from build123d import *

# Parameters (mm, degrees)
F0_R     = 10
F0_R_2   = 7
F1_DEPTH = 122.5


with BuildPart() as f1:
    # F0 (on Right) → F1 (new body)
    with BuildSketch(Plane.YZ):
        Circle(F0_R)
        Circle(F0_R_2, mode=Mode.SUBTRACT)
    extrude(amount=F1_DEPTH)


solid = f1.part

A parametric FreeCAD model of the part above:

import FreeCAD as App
import Part
import Sketcher
from FreeCAD import Vector
Q = App.Units.Quantity

doc = App.newDocument("Part")
body = doc.addObject("PartDesign::Body", "Body")

sketch1 = doc.addObject("Sketcher::SketchObject", "Sketch")
body.addObject(sketch1)
sketch1.AttachmentSupport = (doc.YZ_Plane, [""])
sketch1.MapMode = "FlatFace"
sketch1.addGeometry(Part.Circle(Vector(0, 0, 0), Vector(0, 0, 1), 10), False)
sketch1.addGeometry(Part.Circle(Vector(0, 0, 0), Vector(0, 0, 1), 7), False)
sketch1.addConstraint(Sketcher.Constraint("Coincident", 0, 3, -1, 1))
sketch1.addConstraint(Sketcher.Constraint("Coincident", 1, 3, -1, 1))
sketch1.addConstraint(Sketcher.Constraint("Diameter", 0, Q("20 mm")))
sketch1.addConstraint(Sketcher.Constraint("Diameter", 1, Q("14 mm")))
pad1 = doc.addObject("PartDesign::Pad", "Pad")
body.addObject(pad1)
pad1.Profile = sketch1
pad1.Length = 122.5

doc.recompute()
